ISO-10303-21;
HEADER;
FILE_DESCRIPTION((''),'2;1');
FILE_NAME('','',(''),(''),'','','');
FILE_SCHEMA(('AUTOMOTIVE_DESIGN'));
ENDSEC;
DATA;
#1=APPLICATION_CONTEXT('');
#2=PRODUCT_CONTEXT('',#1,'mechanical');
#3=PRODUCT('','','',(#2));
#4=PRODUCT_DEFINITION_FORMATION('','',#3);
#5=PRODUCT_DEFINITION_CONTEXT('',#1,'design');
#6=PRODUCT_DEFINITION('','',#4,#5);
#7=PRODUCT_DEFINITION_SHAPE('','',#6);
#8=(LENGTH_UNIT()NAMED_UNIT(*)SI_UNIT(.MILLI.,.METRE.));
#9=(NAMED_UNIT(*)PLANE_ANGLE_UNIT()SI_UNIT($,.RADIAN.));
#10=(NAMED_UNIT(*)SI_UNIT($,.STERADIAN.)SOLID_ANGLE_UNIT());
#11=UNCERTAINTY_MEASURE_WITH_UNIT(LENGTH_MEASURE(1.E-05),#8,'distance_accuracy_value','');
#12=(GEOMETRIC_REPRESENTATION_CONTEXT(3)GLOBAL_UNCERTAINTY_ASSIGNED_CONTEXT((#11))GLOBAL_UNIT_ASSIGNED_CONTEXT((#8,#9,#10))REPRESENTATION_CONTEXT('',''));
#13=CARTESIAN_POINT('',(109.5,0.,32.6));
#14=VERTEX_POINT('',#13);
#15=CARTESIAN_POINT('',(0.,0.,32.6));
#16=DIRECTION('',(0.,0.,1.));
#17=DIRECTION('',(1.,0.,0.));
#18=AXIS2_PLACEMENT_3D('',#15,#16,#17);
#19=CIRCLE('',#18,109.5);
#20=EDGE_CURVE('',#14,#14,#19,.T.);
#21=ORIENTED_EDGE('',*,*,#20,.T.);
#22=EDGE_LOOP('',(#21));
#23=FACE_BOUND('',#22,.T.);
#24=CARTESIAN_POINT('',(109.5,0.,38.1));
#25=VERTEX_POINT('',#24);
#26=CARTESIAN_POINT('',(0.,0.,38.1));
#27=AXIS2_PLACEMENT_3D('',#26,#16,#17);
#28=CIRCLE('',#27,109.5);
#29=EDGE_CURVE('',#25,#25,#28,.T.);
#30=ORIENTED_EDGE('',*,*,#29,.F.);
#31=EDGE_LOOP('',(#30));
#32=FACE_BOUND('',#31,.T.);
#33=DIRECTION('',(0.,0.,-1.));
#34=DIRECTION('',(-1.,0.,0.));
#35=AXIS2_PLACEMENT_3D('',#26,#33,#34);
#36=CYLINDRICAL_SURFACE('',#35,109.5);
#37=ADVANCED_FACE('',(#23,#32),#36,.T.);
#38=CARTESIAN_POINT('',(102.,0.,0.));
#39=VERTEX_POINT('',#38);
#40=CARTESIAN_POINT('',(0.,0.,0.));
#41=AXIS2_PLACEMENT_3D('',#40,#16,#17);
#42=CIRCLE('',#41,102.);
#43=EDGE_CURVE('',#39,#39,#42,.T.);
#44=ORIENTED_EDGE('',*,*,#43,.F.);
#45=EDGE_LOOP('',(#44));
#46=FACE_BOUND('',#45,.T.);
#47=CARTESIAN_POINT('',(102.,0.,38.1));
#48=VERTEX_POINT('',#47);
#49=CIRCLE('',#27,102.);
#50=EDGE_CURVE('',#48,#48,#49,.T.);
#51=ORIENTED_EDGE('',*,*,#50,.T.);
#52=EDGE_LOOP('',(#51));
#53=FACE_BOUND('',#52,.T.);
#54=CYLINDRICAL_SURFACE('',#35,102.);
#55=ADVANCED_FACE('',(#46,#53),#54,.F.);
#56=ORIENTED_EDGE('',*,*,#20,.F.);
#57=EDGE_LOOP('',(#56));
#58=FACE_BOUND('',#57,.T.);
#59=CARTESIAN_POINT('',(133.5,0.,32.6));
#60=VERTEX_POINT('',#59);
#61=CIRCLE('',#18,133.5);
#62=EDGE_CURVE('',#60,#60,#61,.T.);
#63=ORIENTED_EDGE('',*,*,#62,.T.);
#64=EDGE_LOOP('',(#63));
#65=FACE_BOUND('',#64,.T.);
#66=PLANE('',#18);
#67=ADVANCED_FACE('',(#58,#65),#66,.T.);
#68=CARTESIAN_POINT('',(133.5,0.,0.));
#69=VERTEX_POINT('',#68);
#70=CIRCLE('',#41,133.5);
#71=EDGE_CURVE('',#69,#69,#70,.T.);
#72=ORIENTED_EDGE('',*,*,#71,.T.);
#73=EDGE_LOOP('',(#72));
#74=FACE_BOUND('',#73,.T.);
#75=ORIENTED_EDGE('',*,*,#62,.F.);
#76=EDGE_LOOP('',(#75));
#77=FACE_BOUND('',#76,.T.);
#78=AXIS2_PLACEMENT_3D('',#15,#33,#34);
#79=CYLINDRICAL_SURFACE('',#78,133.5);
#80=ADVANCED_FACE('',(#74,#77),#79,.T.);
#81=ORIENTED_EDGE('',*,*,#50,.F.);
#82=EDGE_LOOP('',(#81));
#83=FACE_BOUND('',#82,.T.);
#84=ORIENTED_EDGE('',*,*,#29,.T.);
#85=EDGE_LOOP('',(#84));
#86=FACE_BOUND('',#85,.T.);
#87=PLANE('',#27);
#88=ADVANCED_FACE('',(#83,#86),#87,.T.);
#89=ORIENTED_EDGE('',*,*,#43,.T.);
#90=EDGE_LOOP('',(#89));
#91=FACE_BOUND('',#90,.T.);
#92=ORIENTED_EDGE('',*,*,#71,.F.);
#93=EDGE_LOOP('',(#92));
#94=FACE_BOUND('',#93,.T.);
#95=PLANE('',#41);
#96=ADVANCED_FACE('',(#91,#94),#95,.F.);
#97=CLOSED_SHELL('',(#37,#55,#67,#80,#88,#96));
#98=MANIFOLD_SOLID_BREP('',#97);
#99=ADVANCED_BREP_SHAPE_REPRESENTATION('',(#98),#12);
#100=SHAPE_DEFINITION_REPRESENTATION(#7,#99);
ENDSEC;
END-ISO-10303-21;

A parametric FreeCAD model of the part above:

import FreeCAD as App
import Part
import Sketcher

V = App.Vector
Q = App.Units.Quantity

doc = App.newDocument("Part")
body = doc.addObject("PartDesign::Body", "Body")

sketch1 = doc.addObject("Sketcher::SketchObject", "Sketch")
body.addObject(sketch1)
sketch1.AttachmentSupport = (doc.XY_Plane, [""])
sketch1.MapMode = "FlatFace"
sketch1.addGeometry([
    Part.Circle(V(0, 0, 0), V(0, 0, 1), 109.5),
    Part.Circle(V(0, 0, 0), V(0, 0, 1), 102),
], False)
sketch1.addConstraint([
    Sketcher.Constraint("Coincident", 0, 3, -1, 1),
    Sketcher.Constraint("Coincident", 1, 3, -1, 1),
    Sketcher.Constraint("Diameter", 0, Q("219 mm")),
    Sketcher.Constraint("Diameter", 1, Q("204 mm")),
])
pad1 = doc.addObject("PartDesign::Pad", "Pad")
body.addObject(pad1)
pad1.Profile = sketch1
pad1.Length = 38.1

sketch2 = doc.addObject("Sketcher::SketchObject", "Sketch001")
body.addObject(sketch2)
sketch2.AttachmentSupport = (doc.XY_Plane, [""])
sketch2.MapMode = "FlatFace"
sketch2.addGeometry([
    Part.Circle(V(0, 0, 0), V(0, 0, 1), 133.5),
    Part.Circle(V(0, 0, 0), V(0, 0, 1), 109.5),
], False)
sketch2.addConstraint([
    Sketcher.Constraint("Coincident", 0, 3, -1, 1),
    Sketcher.Constraint("Coincident", 1, 3, -1, 1),
    Sketcher.Constraint("Diameter", 0, Q("267 mm")),
    Sketcher.Constraint("Diameter", 1, Q("219 mm")),
])
pad2 = doc.addObject("PartDesign::Pad", "Pad001")
body.addObject(pad2)
pad2.Profile = sketch2
pad2.Length = 32.6

doc.recompute()
